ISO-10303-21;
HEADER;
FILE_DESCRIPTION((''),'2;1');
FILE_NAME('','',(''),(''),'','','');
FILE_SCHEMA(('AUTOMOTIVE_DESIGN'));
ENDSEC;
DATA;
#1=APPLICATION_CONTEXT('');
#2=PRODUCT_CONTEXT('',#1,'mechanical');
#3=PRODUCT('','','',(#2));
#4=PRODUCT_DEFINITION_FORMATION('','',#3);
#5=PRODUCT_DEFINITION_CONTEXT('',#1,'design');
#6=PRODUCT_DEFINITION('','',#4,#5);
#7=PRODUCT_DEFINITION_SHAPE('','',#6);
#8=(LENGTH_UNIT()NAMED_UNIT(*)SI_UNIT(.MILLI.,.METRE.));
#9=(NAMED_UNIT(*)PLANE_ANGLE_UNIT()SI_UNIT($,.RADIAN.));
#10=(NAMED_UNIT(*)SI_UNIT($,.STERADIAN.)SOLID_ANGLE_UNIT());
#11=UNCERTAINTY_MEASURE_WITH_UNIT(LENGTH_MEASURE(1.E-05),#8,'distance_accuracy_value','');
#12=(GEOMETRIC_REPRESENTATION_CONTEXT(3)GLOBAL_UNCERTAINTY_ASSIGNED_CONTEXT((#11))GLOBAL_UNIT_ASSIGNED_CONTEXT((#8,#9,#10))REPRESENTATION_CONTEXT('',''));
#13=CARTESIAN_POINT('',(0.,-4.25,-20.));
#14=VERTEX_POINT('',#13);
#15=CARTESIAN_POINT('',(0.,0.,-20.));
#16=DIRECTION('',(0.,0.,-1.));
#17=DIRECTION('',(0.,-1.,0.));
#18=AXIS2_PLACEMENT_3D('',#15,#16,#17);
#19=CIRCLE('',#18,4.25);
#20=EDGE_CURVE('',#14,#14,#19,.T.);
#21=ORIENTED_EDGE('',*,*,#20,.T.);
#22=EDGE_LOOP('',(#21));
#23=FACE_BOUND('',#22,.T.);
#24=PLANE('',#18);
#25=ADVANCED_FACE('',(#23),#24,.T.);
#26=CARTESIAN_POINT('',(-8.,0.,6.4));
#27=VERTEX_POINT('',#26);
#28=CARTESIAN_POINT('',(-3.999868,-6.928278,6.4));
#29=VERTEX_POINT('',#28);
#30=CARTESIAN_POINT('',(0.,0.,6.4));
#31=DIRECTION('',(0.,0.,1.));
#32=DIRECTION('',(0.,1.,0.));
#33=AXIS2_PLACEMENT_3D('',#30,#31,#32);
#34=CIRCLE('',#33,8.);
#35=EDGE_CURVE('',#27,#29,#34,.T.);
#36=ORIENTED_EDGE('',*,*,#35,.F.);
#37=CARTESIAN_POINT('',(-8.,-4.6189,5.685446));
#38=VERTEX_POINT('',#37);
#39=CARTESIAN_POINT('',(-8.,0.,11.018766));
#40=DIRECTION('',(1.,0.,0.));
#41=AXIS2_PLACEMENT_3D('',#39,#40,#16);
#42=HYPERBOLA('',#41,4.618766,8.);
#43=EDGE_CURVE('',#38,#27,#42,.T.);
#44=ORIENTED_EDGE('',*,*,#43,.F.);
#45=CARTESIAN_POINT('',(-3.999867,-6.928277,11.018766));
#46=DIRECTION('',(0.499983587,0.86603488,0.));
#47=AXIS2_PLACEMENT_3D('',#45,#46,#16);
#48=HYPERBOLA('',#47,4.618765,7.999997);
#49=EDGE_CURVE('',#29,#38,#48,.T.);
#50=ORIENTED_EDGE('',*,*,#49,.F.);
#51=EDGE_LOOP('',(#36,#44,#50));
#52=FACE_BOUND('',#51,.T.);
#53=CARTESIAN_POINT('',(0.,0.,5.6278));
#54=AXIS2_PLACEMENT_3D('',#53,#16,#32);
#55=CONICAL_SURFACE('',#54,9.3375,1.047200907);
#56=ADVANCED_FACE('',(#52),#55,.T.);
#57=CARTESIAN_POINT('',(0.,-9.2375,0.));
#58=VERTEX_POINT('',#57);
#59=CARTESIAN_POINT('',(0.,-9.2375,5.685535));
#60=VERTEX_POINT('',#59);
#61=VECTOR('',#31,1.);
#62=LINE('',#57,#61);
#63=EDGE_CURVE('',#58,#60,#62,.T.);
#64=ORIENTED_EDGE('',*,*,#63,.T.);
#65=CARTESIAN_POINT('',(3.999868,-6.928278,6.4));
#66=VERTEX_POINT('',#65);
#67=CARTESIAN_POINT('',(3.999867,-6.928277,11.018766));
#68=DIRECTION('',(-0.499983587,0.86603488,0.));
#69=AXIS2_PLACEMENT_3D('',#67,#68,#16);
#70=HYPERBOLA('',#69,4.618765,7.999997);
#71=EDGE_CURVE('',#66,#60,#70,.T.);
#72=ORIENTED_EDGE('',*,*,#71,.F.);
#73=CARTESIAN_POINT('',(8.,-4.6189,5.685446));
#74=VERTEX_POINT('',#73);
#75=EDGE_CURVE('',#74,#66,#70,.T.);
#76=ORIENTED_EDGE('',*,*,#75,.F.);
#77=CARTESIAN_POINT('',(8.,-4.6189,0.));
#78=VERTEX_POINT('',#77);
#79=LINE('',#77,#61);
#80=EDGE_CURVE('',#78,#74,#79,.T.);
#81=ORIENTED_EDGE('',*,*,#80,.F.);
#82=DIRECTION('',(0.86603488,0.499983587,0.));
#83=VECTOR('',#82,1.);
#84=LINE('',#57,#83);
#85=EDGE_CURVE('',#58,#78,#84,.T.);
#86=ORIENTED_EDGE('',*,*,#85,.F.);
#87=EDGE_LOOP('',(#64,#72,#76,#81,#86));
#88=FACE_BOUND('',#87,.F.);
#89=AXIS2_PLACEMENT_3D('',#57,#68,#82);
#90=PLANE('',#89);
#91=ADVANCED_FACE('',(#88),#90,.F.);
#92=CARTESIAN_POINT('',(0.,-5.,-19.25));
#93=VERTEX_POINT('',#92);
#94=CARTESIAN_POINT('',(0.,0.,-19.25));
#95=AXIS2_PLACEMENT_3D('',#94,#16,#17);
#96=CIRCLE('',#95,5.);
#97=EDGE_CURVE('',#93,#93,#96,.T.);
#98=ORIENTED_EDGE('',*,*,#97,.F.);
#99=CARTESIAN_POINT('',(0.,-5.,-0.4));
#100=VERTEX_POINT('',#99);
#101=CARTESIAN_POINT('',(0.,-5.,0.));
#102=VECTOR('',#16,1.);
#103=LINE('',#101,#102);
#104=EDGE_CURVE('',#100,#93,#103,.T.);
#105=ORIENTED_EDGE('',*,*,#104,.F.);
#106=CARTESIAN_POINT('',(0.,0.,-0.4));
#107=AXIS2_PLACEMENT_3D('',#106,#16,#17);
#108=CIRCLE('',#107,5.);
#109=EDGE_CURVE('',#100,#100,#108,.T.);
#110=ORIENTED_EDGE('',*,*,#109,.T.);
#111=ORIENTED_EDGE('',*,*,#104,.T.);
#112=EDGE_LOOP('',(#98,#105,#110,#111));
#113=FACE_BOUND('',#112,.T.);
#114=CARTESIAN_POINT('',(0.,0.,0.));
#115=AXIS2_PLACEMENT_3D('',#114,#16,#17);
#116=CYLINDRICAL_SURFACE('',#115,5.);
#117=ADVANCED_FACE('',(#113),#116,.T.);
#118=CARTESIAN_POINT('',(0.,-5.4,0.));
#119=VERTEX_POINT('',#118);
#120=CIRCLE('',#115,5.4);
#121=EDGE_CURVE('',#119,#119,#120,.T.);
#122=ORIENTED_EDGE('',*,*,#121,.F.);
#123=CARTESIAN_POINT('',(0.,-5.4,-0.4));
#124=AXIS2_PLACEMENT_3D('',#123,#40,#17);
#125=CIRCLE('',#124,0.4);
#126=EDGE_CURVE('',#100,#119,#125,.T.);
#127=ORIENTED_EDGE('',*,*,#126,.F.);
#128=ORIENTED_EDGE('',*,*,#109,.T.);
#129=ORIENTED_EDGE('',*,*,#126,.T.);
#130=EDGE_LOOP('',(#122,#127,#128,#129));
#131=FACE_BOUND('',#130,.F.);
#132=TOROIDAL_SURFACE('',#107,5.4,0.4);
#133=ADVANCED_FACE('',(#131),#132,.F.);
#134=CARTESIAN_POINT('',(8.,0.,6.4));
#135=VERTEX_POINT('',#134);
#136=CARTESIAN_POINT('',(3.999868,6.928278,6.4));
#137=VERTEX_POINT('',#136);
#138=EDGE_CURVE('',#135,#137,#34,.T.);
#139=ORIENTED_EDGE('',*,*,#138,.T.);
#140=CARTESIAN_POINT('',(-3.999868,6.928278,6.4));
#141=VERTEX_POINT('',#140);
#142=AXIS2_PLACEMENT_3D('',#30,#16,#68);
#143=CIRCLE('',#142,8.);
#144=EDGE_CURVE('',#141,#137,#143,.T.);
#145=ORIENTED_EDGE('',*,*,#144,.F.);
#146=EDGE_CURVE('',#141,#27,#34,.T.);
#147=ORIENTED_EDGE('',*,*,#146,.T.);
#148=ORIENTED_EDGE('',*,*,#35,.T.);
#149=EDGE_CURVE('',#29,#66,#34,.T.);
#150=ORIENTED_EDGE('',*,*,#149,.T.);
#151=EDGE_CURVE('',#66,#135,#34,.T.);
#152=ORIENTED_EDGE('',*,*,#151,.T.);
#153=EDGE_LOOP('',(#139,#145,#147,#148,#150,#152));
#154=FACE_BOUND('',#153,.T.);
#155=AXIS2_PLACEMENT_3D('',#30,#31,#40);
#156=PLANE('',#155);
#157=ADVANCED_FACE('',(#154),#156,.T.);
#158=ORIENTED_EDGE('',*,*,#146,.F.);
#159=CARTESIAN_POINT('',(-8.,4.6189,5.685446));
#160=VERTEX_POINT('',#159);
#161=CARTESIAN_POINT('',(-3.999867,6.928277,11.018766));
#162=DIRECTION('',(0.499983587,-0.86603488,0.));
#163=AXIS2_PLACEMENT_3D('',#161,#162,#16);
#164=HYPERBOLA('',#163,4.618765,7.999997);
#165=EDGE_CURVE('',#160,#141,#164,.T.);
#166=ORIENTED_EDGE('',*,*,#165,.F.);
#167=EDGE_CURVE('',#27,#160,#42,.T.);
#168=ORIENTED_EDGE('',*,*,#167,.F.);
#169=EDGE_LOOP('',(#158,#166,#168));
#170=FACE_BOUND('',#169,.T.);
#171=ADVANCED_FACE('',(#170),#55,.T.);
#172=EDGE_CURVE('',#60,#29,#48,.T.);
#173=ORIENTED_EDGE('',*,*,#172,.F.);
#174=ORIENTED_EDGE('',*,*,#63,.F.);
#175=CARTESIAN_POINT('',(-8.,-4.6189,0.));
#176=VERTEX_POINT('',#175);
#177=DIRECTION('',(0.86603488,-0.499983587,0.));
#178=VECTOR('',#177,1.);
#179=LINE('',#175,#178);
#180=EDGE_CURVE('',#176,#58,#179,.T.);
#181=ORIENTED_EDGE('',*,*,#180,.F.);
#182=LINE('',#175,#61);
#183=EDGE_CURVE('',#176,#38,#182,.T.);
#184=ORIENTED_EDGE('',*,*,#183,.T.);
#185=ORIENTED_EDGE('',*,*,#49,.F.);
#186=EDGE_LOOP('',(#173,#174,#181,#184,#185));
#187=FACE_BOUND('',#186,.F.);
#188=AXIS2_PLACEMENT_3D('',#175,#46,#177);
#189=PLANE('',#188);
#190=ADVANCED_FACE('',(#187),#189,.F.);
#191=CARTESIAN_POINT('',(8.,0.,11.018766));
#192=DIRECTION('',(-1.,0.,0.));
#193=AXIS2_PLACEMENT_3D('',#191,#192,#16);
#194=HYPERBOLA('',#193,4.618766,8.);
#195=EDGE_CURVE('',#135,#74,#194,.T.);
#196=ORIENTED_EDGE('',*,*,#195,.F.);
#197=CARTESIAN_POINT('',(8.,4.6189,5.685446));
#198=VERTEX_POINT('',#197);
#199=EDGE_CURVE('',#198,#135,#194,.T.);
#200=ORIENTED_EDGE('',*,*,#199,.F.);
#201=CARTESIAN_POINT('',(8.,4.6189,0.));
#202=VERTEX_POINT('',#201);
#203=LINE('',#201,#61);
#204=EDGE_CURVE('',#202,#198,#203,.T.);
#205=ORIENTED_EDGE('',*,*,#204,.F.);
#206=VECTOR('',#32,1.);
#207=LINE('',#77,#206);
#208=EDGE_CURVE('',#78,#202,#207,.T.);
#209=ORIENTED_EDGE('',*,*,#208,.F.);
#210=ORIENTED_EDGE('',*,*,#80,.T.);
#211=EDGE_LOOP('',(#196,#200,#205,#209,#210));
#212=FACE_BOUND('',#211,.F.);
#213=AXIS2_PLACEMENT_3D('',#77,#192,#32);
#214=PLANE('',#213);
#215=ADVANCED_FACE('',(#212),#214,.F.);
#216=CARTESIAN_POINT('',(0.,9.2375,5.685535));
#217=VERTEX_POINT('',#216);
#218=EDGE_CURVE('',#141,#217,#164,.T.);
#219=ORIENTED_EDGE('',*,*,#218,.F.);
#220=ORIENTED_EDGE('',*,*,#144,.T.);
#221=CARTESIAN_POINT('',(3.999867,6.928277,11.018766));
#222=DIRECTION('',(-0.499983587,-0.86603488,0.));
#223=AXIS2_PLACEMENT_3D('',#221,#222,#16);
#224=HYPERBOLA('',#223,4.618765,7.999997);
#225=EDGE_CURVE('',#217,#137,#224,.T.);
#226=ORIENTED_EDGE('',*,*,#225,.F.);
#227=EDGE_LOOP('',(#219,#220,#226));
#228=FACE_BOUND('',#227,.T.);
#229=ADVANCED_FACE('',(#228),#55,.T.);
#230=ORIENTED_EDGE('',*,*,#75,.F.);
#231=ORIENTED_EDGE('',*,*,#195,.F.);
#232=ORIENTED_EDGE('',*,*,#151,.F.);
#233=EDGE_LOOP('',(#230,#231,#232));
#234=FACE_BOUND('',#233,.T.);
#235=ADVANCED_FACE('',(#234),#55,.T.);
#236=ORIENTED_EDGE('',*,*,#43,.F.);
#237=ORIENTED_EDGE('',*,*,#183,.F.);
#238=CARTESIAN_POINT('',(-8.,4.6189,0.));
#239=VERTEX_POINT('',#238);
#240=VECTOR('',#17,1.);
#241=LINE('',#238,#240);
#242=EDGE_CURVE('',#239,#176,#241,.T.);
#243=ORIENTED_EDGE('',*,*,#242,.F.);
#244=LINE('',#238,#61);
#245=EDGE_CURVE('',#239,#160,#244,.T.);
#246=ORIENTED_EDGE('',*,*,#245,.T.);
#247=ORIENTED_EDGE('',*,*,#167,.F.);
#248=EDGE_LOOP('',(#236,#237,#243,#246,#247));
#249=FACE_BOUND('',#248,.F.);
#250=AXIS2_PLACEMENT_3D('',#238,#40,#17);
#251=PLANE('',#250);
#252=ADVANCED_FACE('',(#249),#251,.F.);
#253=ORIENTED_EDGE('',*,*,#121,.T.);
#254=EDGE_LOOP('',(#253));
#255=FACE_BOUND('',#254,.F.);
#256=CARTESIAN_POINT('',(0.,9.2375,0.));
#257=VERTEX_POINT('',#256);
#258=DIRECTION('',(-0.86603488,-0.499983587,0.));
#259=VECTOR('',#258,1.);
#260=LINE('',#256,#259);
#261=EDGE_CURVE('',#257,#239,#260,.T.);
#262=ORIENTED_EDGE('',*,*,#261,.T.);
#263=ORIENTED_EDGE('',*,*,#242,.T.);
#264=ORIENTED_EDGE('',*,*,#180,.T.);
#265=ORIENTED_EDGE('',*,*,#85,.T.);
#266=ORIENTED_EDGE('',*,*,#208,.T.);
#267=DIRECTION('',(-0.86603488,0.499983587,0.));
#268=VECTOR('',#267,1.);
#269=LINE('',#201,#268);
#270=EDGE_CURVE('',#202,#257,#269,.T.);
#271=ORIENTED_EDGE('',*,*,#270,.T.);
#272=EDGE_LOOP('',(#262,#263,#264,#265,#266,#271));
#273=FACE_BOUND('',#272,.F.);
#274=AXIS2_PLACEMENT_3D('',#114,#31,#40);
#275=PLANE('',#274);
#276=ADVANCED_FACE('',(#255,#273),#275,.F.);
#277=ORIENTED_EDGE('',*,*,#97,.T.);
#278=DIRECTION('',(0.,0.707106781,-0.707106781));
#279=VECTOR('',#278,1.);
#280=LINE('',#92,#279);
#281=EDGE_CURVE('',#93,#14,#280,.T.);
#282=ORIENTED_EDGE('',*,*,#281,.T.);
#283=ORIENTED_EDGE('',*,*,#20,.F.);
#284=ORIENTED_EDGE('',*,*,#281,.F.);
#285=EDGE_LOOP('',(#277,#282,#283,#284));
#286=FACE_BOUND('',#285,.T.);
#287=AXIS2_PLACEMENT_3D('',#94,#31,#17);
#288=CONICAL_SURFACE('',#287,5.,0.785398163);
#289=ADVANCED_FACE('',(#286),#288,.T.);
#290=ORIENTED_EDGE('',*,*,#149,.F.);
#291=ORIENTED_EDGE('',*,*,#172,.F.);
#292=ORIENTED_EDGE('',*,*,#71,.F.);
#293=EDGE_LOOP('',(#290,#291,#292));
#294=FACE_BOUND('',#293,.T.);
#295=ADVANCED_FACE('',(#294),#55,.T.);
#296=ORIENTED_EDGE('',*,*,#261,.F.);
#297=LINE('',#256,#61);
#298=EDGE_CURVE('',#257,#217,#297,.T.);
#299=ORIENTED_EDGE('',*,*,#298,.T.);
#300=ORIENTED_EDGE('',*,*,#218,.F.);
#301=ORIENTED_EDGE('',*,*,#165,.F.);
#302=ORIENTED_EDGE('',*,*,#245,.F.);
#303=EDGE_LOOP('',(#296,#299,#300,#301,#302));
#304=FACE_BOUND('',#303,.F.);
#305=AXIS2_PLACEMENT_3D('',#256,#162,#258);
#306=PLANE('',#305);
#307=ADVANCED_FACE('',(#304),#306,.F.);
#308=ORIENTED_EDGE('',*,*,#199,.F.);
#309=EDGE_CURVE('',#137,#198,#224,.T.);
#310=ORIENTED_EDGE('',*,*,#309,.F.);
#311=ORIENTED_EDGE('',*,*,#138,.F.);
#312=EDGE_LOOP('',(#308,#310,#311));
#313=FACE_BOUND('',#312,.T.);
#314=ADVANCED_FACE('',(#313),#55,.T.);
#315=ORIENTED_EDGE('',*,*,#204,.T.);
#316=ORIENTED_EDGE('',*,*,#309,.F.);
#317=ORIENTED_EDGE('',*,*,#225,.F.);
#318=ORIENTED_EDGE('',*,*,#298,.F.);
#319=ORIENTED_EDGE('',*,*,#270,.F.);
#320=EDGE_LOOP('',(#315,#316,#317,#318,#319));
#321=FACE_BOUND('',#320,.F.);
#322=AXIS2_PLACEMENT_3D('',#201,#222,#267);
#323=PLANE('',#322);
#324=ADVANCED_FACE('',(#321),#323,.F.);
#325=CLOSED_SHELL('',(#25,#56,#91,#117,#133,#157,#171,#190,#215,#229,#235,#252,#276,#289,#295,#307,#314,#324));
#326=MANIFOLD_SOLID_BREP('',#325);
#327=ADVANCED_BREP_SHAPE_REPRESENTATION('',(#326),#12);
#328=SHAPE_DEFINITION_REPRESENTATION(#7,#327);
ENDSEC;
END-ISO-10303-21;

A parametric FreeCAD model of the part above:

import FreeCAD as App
import Part
import Sketcher
from FreeCAD import Vector
Q = App.Units.Quantity


def edges_at(feature, points):
    """Names of the edges that pass closest to the given points."""
    edges = feature.Shape.Edges
    near = lambda p: min(range(len(edges)), key=lambda i: edges[i].distToShape(Part.Vertex(*p))[0])
    return sorted({f"Edge{near(p) + 1}" for p in points})

doc = App.newDocument("Part")
body = doc.addObject("PartDesign::Body", "Body")

# Sketch on XY plane
sketch1 = body.newObject("Sketcher::SketchObject", "Sketch")
sketch1.AttachmentSupport = (doc.getObject("XY_Plane"), [""])
sketch1.MapMode = "FlatFace"
sketch1.addGeometry([
    Part.LineSegment(Vector(0, 9, 0), Vector(-8, 5, 0)),  # 0
    Part.LineSegment(Vector(-8, 5, 0), Vector(-8, -5, 0)),  # 1
    Part.LineSegment(Vector(-8, -5, 0), Vector(0, -9, 0)),  # 2
    Part.LineSegment(Vector(0, -9, 0), Vector(8, -5, 0)),  # 3
    Part.LineSegment(Vector(8, -5, 0), Vector(8, 5, 0)),  # 4
    Part.LineSegment(Vector(8, 5, 0), Vector(0, 9, 0)),  # 5
], False)
sketch1.addConstraint([
    Sketcher.Constraint("Coincident", 0, 2, 1, 1),
    Sketcher.Constraint("Coincident", 1, 2, 2, 1),
    Sketcher.Constraint("Coincident", 2, 2, 3, 1),
    Sketcher.Constraint("Coincident", 3, 2, 4, 1),
    Sketcher.Constraint("Coincident", 4, 2, 5, 1),
    Sketcher.Constraint("Coincident", 5, 2, 0, 1),
    Sketcher.Constraint("Vertical", 1),
    Sketcher.Constraint("Vertical", 4),
    Sketcher.Constraint("Symmetric", 0, 2, 3, 2, -1, 1),
    Sketcher.Constraint("Symmetric", 2, 2, 5, 2, -1, 1),
    Sketcher.Constraint("PointOnObject", 2, 2, -2),
    Sketcher.Constraint("Parallel", 2, 5),
    Sketcher.Constraint("Horizontal", 1, 2, 3, 2),
    Sketcher.Constraint("DistanceX", 1, 2, 3, 2, 16.0),
    Sketcher.Constraint("Angle", 0, Q("-150.001 deg")),
    Sketcher.Constraint("DistanceY", 1, 2, 1, 1, 9.2378),
])
pad1 = body.newObject("PartDesign::Pad", "Pad")
pad1.Profile = sketch1
pad1.Length = 6.4

# Sketch on YZ plane
sketch2 = body.newObject("Sketcher::SketchObject", "Sketch001")
sketch2.AttachmentSupport = (doc.getObject("YZ_Plane"), [""])
sketch2.MapMode = "FlatFace"
sketch2.addGeometry([
    Part.LineSegment(Vector(8, 6.4, 0), Vector(9.3, 5.6, 0)),
    Part.LineSegment(Vector(9.3, 5.6, 0), Vector(9.3, 6.4, 0)),
    Part.LineSegment(Vector(9.3, 6.4, 0), Vector(8, 6.4, 0)),
], False)
sketch2.addConstraint([
    Sketcher.Constraint("Coincident", 0, 2, 1, 1),
    Sketcher.Constraint("Coincident", 1, 2, 2, 1),
    Sketcher.Constraint("Coincident", 2, 2, 0, 1),
    Sketcher.Constraint("Vertical", 1),
    Sketcher.Constraint("Horizontal", 2),
    Sketcher.Constraint("DistanceX", -1, 1, 2, 2, 8.0),
    Sketcher.Constraint("Angle", 0, Q("-29.9998 deg")),
    Sketcher.Constraint("DistanceY", -1, 1, 1, 2, 6.4),
    Sketcher.Constraint("DistanceX", 2, 2, 2, 1, 1.3375),
])
groove = body.newObject("PartDesign::Groove", "Groove")
groove.Profile = sketch2
groove.ReferenceAxis = (sketch2, ["V_Axis"])
groove.Angle = 360

# Sketch on YZ plane
sketch3 = body.newObject("Sketcher::SketchObject", "Sketch002")
sketch3.AttachmentSupport = (doc.getObject("YZ_Plane"), [""])
sketch3.MapMode = "FlatFace"
sketch3.addGeometry([
    Part.LineSegment(Vector(-5, -20, 0), Vector(0, -20, 0)),
    Part.LineSegment(Vector(0, -20, 0), Vector(0, 0, 0)),
    Part.LineSegment(Vector(0, 0, 0), Vector(-5, 0, 0)),
    Part.LineSegment(Vector(-5, 0, 0), Vector(-5, -20, 0)),
], False)
sketch3.addConstraint([
    Sketcher.Constraint("Coincident", 0, 2, 1, 1),
    Sketcher.Constraint("Coincident", 1, 2, 2, 1),
    Sketcher.Constraint("Coincident", 2, 2, 3, 1),
    Sketcher.Constraint("Coincident", 3, 2, 0, 1),
    Sketcher.Constraint("Horizontal", 0),
    Sketcher.Constraint("Vertical", 1),
    Sketcher.Constraint("Horizontal", 2),
    Sketcher.Constraint("Vertical", 3),
    Sketcher.Constraint("Coincident", 1, 2, -1, 1),
    Sketcher.Constraint("DistanceX", 0, 1, 0, 2, 5.0),
    Sketcher.Constraint("DistanceY", 1, 1, 1, 2, 20.0),
])
revolution = body.newObject("PartDesign::Revolution", "Revolution")
revolution.Profile = sketch3
revolution.ReferenceAxis = (sketch3, ["V_Axis"])
revolution.Angle = 360
doc.recompute()

chamfer = body.newObject("PartDesign::Chamfer", "Chamfer")
chamfer.Base = (revolution, edges_at(revolution, [(0, 5, -20)]))
chamfer.Size = 0.75
doc.recompute()

fillet = body.newObject("PartDesign::Fillet", "Fillet")
fillet.Base = (chamfer, edges_at(chamfer, [(0, 5, 0)]))
fillet.Radius = 0.4

doc.recompute()
